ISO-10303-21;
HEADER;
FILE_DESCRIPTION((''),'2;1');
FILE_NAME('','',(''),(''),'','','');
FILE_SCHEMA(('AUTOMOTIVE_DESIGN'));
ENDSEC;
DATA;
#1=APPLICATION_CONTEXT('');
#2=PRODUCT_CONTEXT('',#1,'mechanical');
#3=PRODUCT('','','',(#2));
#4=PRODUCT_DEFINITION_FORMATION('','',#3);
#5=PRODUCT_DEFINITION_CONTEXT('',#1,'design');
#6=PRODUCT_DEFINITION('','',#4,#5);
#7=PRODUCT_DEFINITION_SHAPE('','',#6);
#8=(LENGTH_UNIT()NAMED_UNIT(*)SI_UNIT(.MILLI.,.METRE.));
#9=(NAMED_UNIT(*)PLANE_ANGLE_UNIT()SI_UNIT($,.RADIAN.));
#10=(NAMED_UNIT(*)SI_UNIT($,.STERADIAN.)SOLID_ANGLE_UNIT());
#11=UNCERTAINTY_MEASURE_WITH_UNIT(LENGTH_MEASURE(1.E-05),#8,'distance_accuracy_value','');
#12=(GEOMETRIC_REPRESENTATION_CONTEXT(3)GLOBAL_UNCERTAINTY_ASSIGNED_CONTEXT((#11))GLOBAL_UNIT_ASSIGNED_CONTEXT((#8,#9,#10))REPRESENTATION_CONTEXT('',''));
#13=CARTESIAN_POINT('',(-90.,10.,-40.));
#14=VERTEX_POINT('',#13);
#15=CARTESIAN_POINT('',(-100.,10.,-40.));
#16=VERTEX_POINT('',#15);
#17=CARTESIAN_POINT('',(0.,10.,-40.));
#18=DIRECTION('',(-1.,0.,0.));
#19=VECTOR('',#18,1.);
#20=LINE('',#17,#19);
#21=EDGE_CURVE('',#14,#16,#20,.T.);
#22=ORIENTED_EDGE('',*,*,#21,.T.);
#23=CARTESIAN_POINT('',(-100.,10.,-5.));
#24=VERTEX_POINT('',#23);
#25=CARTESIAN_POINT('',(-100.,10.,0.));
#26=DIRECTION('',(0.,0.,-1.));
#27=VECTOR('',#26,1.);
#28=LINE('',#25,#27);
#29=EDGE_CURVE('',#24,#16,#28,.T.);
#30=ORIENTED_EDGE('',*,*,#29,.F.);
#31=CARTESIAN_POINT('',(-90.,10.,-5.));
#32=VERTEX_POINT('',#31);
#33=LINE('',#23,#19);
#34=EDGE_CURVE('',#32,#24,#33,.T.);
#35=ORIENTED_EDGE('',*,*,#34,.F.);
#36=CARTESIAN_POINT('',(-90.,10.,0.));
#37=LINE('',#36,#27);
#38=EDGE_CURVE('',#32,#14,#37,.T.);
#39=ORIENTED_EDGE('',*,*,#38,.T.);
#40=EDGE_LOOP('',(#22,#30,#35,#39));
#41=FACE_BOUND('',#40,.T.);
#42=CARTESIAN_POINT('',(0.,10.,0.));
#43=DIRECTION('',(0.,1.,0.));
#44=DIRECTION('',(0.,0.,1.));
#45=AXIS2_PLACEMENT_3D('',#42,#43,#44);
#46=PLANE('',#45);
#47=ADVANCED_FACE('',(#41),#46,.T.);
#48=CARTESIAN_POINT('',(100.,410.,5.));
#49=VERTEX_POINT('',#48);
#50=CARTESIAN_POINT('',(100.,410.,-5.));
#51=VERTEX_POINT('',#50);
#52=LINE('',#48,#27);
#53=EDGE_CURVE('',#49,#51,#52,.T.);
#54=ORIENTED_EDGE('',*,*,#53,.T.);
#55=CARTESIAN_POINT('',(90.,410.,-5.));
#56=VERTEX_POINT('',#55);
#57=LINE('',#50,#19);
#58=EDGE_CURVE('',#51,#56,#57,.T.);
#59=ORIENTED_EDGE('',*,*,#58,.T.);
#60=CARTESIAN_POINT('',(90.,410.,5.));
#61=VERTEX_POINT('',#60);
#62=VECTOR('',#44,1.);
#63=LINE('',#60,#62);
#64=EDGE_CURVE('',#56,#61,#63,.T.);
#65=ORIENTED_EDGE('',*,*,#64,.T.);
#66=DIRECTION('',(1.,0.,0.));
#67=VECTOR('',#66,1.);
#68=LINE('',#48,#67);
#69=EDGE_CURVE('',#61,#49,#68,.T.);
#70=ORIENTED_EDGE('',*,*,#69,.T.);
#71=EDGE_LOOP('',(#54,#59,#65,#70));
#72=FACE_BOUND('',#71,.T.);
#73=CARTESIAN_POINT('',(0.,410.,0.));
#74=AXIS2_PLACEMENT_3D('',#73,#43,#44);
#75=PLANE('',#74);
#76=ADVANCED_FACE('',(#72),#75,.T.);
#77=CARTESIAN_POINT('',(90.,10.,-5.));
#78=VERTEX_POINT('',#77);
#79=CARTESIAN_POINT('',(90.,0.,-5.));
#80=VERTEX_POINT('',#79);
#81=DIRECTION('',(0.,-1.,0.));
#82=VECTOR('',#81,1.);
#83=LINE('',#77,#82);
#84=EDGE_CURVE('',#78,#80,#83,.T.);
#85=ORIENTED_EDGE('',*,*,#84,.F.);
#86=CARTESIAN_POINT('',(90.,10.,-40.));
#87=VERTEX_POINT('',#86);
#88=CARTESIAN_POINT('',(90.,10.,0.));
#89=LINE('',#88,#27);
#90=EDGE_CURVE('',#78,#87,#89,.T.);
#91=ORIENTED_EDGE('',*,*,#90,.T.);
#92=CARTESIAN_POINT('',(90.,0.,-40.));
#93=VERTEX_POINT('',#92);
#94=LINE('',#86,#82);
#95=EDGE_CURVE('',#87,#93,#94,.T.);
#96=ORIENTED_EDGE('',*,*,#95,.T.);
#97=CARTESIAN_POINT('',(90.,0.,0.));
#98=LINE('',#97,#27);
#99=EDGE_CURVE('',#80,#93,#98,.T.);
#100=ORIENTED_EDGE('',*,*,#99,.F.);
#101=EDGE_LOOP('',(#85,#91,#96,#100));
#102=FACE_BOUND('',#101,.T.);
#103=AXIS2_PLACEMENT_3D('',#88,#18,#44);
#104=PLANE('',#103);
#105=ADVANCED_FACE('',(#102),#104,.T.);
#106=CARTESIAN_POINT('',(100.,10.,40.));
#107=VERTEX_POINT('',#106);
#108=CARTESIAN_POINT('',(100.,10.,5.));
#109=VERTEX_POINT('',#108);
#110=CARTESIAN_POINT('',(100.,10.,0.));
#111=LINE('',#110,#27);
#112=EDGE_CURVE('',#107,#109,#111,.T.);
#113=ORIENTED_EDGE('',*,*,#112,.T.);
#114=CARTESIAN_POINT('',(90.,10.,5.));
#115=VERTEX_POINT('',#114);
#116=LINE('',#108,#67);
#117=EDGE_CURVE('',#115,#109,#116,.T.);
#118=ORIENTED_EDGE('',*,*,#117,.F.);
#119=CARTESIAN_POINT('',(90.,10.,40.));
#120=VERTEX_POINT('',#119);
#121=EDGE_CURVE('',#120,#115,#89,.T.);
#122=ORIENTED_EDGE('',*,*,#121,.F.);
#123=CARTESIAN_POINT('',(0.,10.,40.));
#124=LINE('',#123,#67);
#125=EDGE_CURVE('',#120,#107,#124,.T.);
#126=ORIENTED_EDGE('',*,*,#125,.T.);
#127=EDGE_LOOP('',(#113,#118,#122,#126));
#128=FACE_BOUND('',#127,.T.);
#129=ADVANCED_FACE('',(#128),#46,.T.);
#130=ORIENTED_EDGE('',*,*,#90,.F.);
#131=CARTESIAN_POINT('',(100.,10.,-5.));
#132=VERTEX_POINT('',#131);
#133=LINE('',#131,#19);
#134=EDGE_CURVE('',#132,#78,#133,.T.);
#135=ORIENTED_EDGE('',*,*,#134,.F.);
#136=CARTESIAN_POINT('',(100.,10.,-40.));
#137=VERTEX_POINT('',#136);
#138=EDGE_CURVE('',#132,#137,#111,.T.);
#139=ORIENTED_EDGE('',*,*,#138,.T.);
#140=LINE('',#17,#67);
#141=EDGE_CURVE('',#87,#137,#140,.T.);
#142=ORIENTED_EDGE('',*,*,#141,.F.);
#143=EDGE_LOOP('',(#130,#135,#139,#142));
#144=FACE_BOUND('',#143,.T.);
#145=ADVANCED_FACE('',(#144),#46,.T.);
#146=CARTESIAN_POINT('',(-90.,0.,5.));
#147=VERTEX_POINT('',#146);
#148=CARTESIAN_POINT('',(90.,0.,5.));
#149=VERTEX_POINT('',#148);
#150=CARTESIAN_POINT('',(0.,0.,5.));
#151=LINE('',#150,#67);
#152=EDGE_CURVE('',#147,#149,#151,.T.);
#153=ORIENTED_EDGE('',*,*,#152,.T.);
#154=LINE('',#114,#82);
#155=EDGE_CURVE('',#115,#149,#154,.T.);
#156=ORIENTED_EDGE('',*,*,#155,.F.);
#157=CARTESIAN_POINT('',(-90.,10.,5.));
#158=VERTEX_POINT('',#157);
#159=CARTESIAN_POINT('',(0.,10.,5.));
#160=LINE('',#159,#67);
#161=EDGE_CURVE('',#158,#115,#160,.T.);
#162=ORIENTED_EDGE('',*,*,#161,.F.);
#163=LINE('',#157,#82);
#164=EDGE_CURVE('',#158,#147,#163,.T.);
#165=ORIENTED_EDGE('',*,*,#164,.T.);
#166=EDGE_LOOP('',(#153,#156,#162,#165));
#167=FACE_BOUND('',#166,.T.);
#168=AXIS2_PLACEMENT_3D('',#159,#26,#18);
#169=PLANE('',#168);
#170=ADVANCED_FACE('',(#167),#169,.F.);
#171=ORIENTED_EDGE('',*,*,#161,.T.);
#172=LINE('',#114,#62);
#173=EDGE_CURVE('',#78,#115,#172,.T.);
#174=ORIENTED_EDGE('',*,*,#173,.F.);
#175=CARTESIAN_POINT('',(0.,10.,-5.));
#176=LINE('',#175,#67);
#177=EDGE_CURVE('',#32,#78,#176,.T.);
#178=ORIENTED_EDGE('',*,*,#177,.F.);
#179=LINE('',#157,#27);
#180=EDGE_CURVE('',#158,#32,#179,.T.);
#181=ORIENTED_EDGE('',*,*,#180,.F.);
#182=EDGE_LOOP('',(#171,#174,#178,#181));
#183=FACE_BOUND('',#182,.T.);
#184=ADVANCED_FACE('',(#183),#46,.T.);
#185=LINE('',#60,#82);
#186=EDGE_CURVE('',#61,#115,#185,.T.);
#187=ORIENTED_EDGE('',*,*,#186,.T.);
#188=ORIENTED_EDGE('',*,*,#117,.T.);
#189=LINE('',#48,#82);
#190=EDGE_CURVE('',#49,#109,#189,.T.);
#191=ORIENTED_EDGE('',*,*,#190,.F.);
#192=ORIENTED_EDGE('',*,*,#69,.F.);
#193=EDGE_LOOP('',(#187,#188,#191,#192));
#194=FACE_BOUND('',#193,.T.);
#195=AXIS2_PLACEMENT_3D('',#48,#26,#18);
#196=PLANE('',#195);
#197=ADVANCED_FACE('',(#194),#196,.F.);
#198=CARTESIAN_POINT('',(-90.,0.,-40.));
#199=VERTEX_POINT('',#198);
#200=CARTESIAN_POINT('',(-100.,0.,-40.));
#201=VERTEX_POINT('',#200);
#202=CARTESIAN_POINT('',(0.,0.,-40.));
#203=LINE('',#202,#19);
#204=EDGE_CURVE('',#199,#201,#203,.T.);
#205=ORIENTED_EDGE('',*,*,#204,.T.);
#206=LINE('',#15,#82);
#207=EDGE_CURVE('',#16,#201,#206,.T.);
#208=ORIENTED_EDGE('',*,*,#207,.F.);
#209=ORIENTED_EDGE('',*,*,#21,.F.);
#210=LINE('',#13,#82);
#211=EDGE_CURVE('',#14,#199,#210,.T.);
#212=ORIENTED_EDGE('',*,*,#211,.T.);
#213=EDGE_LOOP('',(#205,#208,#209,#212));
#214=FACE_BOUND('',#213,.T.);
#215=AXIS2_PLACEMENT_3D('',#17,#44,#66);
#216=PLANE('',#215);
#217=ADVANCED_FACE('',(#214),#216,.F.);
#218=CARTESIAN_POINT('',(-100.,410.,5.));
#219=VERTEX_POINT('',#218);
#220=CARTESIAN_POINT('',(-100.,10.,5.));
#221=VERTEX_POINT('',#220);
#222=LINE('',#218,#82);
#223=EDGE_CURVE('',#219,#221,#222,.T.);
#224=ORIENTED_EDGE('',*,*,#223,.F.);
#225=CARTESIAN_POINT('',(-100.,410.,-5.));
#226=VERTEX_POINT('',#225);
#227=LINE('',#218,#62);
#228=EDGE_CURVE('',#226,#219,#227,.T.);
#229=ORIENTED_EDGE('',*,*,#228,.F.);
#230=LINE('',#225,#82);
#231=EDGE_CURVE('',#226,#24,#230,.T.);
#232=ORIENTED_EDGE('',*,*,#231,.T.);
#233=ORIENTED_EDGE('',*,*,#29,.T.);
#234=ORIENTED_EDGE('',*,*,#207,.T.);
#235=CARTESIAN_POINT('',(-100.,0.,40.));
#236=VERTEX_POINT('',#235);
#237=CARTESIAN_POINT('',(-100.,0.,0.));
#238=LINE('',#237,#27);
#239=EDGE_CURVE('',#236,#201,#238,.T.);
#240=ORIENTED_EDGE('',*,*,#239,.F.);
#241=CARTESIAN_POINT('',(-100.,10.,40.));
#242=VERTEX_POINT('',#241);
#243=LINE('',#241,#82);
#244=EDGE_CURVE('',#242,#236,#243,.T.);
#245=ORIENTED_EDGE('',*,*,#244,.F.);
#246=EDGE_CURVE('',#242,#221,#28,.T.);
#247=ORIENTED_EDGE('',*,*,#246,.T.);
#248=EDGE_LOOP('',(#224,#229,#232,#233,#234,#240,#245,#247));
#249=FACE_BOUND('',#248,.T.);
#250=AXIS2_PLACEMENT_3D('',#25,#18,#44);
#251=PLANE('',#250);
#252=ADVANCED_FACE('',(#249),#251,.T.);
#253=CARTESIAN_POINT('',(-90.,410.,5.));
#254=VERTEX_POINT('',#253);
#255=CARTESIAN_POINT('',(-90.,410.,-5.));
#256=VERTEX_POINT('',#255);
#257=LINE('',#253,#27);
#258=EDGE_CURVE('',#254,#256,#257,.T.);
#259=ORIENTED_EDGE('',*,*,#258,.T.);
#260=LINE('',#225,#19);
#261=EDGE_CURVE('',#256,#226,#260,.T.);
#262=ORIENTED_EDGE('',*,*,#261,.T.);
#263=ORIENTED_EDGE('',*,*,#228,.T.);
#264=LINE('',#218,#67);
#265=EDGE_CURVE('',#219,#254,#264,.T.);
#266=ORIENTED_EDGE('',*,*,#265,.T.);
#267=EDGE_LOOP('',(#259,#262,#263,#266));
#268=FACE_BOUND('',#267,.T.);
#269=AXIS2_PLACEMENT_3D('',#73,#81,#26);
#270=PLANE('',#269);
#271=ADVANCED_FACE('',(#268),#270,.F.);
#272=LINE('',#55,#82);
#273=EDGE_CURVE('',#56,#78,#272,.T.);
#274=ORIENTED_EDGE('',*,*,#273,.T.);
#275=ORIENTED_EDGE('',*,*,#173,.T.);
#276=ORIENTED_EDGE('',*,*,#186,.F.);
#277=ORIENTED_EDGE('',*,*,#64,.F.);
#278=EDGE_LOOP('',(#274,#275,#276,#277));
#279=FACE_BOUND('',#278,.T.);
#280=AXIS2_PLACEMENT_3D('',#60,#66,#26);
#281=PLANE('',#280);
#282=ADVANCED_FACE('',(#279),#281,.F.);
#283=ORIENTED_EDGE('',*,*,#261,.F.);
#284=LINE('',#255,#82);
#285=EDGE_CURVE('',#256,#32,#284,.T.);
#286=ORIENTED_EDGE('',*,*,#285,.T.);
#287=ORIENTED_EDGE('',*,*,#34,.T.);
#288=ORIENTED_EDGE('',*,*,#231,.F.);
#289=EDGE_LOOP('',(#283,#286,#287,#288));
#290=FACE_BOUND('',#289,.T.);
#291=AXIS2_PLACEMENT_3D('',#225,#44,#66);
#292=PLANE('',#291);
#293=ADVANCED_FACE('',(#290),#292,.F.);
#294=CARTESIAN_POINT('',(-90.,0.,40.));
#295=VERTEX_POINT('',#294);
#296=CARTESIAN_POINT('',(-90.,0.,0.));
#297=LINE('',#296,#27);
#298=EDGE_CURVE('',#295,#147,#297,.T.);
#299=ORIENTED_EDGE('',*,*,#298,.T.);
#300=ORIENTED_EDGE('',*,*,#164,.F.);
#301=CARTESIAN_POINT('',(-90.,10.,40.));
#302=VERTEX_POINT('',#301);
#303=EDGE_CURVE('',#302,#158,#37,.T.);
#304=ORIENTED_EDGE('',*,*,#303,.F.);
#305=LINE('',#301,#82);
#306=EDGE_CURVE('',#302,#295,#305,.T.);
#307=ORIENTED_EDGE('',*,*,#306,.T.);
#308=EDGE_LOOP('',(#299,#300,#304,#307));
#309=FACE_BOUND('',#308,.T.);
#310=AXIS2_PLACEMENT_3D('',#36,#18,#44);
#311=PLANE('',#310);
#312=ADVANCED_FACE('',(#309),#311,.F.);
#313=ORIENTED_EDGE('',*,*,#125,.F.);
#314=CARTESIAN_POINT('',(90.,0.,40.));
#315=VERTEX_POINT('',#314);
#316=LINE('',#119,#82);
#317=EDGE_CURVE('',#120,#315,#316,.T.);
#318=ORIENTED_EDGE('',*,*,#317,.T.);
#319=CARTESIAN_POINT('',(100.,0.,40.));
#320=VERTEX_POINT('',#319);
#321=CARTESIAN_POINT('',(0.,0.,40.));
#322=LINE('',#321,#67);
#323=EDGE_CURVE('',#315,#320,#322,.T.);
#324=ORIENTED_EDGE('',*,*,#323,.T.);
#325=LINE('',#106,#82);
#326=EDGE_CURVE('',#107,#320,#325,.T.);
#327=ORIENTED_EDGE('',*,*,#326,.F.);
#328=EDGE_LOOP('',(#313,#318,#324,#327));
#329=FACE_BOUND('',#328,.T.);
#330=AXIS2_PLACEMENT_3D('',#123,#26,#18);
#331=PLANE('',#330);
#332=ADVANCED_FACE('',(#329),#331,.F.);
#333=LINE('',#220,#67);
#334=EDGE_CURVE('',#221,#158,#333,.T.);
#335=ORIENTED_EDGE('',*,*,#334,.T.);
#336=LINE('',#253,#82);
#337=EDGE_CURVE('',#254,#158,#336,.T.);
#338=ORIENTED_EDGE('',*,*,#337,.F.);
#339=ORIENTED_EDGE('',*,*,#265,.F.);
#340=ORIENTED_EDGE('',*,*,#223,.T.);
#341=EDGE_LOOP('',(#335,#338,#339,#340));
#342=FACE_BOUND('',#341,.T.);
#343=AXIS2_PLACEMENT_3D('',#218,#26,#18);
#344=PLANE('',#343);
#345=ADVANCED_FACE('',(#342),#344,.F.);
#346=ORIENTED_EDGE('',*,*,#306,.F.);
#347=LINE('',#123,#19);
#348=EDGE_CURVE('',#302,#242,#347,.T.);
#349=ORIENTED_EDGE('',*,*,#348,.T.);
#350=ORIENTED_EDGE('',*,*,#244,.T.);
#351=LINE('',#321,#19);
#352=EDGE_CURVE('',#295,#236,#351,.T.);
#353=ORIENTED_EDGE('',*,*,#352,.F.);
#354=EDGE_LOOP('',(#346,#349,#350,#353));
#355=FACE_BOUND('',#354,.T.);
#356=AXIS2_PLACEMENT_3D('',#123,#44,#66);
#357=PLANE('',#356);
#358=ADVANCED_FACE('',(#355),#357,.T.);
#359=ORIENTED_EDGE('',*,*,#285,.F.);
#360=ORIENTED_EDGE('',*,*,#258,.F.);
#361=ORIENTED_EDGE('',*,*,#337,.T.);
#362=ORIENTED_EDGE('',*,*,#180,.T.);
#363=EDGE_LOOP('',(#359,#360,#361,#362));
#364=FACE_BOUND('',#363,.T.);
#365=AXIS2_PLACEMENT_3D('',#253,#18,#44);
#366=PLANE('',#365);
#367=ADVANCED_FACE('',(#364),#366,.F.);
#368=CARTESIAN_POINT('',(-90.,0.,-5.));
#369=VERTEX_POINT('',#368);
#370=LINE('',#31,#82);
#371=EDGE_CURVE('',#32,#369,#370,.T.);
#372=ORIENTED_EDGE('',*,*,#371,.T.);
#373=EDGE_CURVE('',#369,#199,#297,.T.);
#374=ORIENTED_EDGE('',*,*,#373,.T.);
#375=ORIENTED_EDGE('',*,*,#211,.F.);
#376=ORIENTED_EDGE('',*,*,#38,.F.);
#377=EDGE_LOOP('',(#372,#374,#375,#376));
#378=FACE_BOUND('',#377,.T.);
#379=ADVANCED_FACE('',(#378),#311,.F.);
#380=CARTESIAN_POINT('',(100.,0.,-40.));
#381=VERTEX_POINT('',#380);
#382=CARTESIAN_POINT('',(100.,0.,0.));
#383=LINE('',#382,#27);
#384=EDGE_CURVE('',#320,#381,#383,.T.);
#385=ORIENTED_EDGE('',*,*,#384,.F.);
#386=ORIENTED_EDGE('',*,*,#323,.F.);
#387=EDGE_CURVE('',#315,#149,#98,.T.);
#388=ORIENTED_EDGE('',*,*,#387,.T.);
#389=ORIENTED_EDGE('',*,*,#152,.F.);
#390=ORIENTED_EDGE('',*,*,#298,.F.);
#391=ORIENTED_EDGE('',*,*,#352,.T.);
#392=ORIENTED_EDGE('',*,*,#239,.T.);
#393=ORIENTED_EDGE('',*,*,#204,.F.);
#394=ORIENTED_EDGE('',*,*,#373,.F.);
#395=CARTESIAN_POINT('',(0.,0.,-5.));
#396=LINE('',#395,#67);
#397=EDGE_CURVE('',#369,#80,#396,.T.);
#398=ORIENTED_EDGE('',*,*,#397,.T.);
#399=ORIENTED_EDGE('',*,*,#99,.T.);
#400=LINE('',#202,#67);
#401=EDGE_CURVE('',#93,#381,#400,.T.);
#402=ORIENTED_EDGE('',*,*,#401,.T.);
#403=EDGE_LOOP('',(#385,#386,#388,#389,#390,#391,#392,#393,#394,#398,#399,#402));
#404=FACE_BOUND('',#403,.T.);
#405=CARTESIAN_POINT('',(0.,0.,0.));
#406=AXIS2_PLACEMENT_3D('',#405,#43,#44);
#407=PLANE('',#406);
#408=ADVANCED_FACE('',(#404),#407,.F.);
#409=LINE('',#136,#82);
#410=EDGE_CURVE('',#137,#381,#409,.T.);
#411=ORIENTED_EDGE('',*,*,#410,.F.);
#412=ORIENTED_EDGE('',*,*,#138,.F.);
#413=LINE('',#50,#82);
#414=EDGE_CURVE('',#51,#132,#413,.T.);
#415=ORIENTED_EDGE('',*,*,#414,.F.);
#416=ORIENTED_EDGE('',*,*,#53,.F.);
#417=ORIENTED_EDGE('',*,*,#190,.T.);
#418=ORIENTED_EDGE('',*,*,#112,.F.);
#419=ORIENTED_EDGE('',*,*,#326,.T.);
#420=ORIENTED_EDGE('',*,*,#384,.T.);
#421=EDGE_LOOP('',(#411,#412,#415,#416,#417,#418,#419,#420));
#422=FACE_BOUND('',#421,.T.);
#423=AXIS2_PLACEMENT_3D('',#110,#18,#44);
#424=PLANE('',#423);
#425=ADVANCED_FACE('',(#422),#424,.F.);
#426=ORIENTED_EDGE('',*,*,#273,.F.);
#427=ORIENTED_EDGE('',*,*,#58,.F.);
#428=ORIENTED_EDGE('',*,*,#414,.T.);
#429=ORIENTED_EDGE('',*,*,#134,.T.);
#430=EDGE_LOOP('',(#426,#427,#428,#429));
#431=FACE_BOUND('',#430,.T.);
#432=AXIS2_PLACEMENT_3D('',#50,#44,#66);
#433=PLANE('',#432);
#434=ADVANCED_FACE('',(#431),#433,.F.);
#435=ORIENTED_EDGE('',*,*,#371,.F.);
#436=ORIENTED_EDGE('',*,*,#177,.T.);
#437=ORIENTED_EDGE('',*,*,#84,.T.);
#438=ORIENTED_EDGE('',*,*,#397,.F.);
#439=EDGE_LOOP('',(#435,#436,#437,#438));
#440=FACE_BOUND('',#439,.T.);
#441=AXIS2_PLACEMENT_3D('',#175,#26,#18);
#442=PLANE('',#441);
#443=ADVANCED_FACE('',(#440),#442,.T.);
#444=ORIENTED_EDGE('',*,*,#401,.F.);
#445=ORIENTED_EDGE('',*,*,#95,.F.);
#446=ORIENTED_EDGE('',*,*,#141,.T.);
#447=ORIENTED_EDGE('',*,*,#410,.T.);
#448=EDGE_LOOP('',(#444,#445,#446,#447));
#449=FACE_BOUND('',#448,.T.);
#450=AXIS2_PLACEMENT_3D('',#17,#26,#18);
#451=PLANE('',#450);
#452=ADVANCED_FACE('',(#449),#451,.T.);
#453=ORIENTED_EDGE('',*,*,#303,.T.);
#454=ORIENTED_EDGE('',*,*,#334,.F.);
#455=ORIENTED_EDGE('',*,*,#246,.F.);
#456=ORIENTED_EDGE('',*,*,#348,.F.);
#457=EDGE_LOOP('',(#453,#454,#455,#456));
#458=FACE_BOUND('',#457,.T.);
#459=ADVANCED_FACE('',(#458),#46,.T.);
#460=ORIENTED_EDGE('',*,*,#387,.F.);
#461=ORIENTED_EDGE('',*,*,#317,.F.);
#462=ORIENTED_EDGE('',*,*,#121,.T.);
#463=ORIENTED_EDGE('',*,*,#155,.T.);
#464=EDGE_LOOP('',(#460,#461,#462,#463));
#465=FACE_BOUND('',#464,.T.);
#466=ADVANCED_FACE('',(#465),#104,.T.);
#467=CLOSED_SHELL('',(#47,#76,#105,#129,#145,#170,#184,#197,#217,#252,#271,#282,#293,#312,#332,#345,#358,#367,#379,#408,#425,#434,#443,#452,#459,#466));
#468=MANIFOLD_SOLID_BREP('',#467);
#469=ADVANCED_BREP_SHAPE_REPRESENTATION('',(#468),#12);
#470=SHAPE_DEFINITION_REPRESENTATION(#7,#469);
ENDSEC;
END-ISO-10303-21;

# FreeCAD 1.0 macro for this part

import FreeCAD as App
import Part
import Sketcher
from FreeCAD import Vector
Q = App.Units.Quantity

doc = App.newDocument("Part")
body = doc.addObject("PartDesign::Body", "Body")

# Sketch on XZ plane
sketch1 = body.newObject("Sketcher::SketchObject", "Sketch")
sketch1.AttachmentSupport = (doc.getObject("XZ_Plane"), [""])
sketch1.MapMode = "FlatFace"
sketch1.addGeometry([
    Part.LineSegment(Vector(-100, 40, 0), Vector(-90, 40, 0)),  # 0
    Part.LineSegment(Vector(-90, 40, 0), Vector(-90, 5, 0)),  # 1
    Part.LineSegment(Vector(-90, 5, 0), Vector(90, 5, 0)),  # 2
    Part.LineSegment(Vector(90, 5, 0), Vector(90, 40, 0)),  # 3
    Part.LineSegment(Vector(90, 40, 0), Vector(100, 40, 0)),  # 4
    Part.LineSegment(Vector(100, 40, 0), Vector(100, -40, 0)),  # 5
    Part.LineSegment(Vector(100, -40, 0), Vector(90, -40, 0)),  # 6
    Part.LineSegment(Vector(90, -40, 0), Vector(90, -5, 0)),  # 7
    Part.LineSegment(Vector(90, -5, 0), Vector(-90, -5, 0)),  # 8
    Part.LineSegment(Vector(-90, -5, 0), Vector(-90, -40, 0)),  # 9
    Part.LineSegment(Vector(-90, -40, 0), Vector(-100, -40, 0)),  # 10
    Part.LineSegment(Vector(-100, -40, 0), Vector(-100, 40, 0)),  # 11
], False)
sketch1.addConstraint([
    Sketcher.Constraint("Coincident", 0, 2, 1, 1),
    Sketcher.Constraint("Coincident", 1, 2, 2, 1),
    Sketcher.Constraint("Coincident", 2, 2, 3, 1),
    Sketcher.Constraint("Coincident", 3, 2, 4, 1),
    Sketcher.Constraint("Coincident", 4, 2, 5, 1),
    Sketcher.Constraint("Coincident", 5, 2, 6, 1),
    Sketcher.Constraint("Coincident", 6, 2, 7, 1),
    Sketcher.Constraint("Coincident", 7, 2, 8, 1),
    Sketcher.Constraint("Coincident", 8, 2, 9, 1),
    Sketcher.Constraint("Coincident", 9, 2, 10, 1),
    Sketcher.Constraint("Coincident", 10, 2, 11, 1),
    Sketcher.Constraint("Coincident", 11, 2, 0, 1),
    Sketcher.Constraint("Horizontal", 0),
    Sketcher.Constraint("Vertical", 1),
    Sketcher.Constraint("Horizontal", 2),
    Sketcher.Constraint("Vertical", 3),
    Sketcher.Constraint("Horizontal", 4),
    Sketcher.Constraint("Vertical", 5),
    Sketcher.Constraint("Horizontal", 6),
    Sketcher.Constraint("Vertical", 7),
    Sketcher.Constraint("Horizontal", 8),
    Sketcher.Constraint("Vertical", 9),
    Sketcher.Constraint("Horizontal", 10),
    Sketcher.Constraint("Vertical", 11),
    Sketcher.Constraint("Symmetric", 0, 2, 6, 2, -1, 1),
    Sketcher.Constraint("Symmetric", 2, 2, 8, 2, -1, 1),
    Sketcher.Constraint("Symmetric", 4, 2, 10, 2, -1, 1),
    Sketcher.Constraint("Symmetric", 0, 2, 3, 2, -2),
    Sketcher.Constraint("DistanceX", 0, 1, 0, 2, Q("10 mm")),
    Sketcher.Constraint("DistanceX", 2, 1, 2, 2, Q("180 mm")),
    Sketcher.Constraint("DistanceY", 1, 2, 1, 1, Q("35 mm")),
    Sketcher.Constraint("DistanceY", 5, 2, 5, 1, Q("80 mm")),
])
pad1 = body.newObject("PartDesign::Pad", "Pad")
pad1.Profile = sketch1
pad1.Length = 10
pad1.Reversed = True

# Sketch on XZ plane
sketch2 = body.newObject("Sketcher::SketchObject", "Sketch001")
sketch2.AttachmentSupport = (doc.getObject("XZ_Plane"), [""])
sketch2.MapMode = "FlatFace"
sketch2.AttachmentOffset = App.Placement(Vector(0, 0, -10), App.Rotation())
sketch2.addGeometry([
    Part.LineSegment(Vector(-100, -5, 0), Vector(-100, 5, 0)),  # 0
    Part.LineSegment(Vector(-100, 5, 0), Vector(-90, 5, 0)),  # 1
    Part.LineSegment(Vector(-90, 5, 0), Vector(-90, -5, 0)),  # 2
    Part.LineSegment(Vector(-90, -5, 0), Vector(-100, -5, 0)),  # 3
    Part.LineSegment(Vector(90, -5, 0), Vector(90, 5, 0)),  # 4
    Part.LineSegment(Vector(90, 5, 0), Vector(100, 5, 0)),  # 5
    Part.LineSegment(Vector(100, 5, 0), Vector(100, -5, 0)),  # 6
    Part.LineSegment(Vector(100, -5, 0), Vector(90, -5, 0)),  # 7
], False)
sketch2.addConstraint([
    Sketcher.Constraint("Coincident", 0, 2, 1, 1),
    Sketcher.Constraint("Coincident", 1, 2, 2, 1),
    Sketcher.Constraint("Coincident", 2, 2, 3, 1),
    Sketcher.Constraint("Coincident", 3, 2, 0, 1),
    Sketcher.Constraint("Coincident", 4, 2, 5, 1),
    Sketcher.Constraint("Coincident", 5, 2, 6, 1),
    Sketcher.Constraint("Coincident", 6, 2, 7, 1),
    Sketcher.Constraint("Coincident", 7, 2, 4, 1),
    Sketcher.Constraint("Vertical", 0),
    Sketcher.Constraint("Horizontal", 1),
    Sketcher.Constraint("Vertical", 2),
    Sketcher.Constraint("Horizontal", 3),
    Sketcher.Constraint("Vertical", 4),
    Sketcher.Constraint("Horizontal", 5),
    Sketcher.Constraint("Vertical", 6),
    Sketcher.Constraint("Horizontal", 7),
    Sketcher.Constraint("Symmetric", 2, 2, 4, 2, -1, 1),
    Sketcher.Constraint("Symmetric", 0, 2, 6, 2, -1, 1),
    Sketcher.Constraint("Horizontal", 1, 2, 4, 2),
    Sketcher.Constraint("Equal", 7, 0),
    Sketcher.Constraint("DistanceX", 1, 1, 1, 2, Q("10 mm")),
    Sketcher.Constraint("DistanceX", 0, 2, -1, 1, Q("100 mm")),
])
pad2 = body.newObject("PartDesign::Pad", "Pad001")
pad2.Profile = sketch2
pad2.Length = 400
pad2.Reversed = True

doc.recompute()
